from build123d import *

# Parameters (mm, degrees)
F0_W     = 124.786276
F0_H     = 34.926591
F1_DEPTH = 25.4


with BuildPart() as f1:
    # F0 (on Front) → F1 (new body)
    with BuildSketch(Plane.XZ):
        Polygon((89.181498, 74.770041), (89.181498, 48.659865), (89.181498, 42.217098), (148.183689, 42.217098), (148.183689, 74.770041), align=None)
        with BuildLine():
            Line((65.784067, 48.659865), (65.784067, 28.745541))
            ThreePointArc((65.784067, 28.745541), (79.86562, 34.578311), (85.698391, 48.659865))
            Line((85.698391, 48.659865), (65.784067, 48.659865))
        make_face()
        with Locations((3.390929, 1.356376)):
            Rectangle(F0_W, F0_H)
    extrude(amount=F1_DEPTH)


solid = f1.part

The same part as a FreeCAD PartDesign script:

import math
import FreeCAD as App
import Part
import Sketcher
from FreeCAD import Vector
Q = App.Units.Quantity


def add_polygon(sketch, points):
    """Adds a closed chain of lines whose ends are joined by coincident constraints."""
    first, n = sketch.GeometryCount, len(points)
    for a, b in zip(points, points[1:] + points[:1]):
        sketch.addGeometry(Part.LineSegment(App.Vector(*a, 0), App.Vector(*b, 0)), False)
    for i in range(n):
        sketch.addConstraint(Sketcher.Constraint("Coincident", first + i, 2, first + (i + 1) % n, 1))

doc = App.newDocument("Part")
body = doc.addObject("PartDesign::Body", "Body")
body.AllowCompound = True

sketch1 = body.newObject("Sketcher::SketchObject", "Sketch")
sketch1.AttachmentSupport = (doc.getObject("XZ_Plane"), [""])
sketch1.MapMode = "FlatFace"
add_polygon(sketch1, [(89.181498, 74.770041), (89.181498, 42.217098), (148.183689, 42.217098), (148.183689, 74.770041)])
sketch1.addGeometry(Part.LineSegment(Vector(65.784067, 48.659865, 0), Vector(65.784067, 28.745541, 0)), False)
sketch1.addGeometry(Part.ArcOfCircle(Part.Circle(Vector(65.784067, 48.659865, 0), Vector(0, 0, 1), 19.914324), math.radians(-90), math.radians(0)), False)
sketch1.addGeometry(Part.LineSegment(Vector(85.698391, 48.659865, 0), Vector(65.784067, 48.659865, 0)), False)
add_polygon(sketch1, [(-59.002209, 18.819671), (-59.002209, -16.10692), (65.784067, -16.10692), (65.784067, 18.819671)])
sketch1.addConstraint([
    Sketcher.Constraint("Coincident", 4, 2, 5, 1),
    Sketcher.Constraint("Coincident", 5, 2, 6, 1),
    Sketcher.Constraint("Coincident", 6, 2, 4, 1),
    Sketcher.Constraint("Vertical", 0),
    Sketcher.Constraint("Horizontal", 1),
    Sketcher.Constraint("Vertical", 2),
    Sketcher.Constraint("Horizontal", 3),
    Sketcher.Constraint("Vertical", 4),
    Sketcher.Constraint("Horizontal", 6),
    Sketcher.Constraint("Vertical", 7),
    Sketcher.Constraint("Horizontal", 8),
    Sketcher.Constraint("Vertical", 9),
    Sketcher.Constraint("Horizontal", 10),
    Sketcher.Constraint("Coincident", 6, 2, 5, 3),
    Sketcher.Constraint("Vertical", 6, 2, 8, 2),
    Sketcher.Constraint("Radius", 5, Q("19.914324 mm")),
    Sketcher.Constraint("DistanceX", 1, 1, 1, 2, Q("59.002191 mm")),
    Sketcher.Constraint("DistanceY", 7, 2, 7, 1, Q("34.926591 mm")),
    Sketcher.Constraint("DistanceX", -1, 1, 0, 2, Q("89.181498 mm")),
    Sketcher.Constraint("DistanceY", 4, 2, 3, 2, Q("46.0245 mm")),
    Sketcher.Constraint("DistanceX", 7, 2, 5, 2, Q("144.7006 mm")),
    Sketcher.Constraint("DistanceY", 0, 2, 0, 1, Q("32.552943 mm")),
    Sketcher.Constraint("DistanceY", -1, 1, 2, 2, Q("74.770041 mm")),
    Sketcher.Constraint("DistanceX", -1, 1, 5, 2, Q("85.698391 mm")),
    Sketcher.Constraint("DistanceY", 7, 2, -1, 1, Q("16.10692 mm")),
])
pad1 = body.newObject("PartDesign::Pad", "Pad")
pad1.Profile = sketch1
pad1.Length = Q("1 in")

doc.recompute()
